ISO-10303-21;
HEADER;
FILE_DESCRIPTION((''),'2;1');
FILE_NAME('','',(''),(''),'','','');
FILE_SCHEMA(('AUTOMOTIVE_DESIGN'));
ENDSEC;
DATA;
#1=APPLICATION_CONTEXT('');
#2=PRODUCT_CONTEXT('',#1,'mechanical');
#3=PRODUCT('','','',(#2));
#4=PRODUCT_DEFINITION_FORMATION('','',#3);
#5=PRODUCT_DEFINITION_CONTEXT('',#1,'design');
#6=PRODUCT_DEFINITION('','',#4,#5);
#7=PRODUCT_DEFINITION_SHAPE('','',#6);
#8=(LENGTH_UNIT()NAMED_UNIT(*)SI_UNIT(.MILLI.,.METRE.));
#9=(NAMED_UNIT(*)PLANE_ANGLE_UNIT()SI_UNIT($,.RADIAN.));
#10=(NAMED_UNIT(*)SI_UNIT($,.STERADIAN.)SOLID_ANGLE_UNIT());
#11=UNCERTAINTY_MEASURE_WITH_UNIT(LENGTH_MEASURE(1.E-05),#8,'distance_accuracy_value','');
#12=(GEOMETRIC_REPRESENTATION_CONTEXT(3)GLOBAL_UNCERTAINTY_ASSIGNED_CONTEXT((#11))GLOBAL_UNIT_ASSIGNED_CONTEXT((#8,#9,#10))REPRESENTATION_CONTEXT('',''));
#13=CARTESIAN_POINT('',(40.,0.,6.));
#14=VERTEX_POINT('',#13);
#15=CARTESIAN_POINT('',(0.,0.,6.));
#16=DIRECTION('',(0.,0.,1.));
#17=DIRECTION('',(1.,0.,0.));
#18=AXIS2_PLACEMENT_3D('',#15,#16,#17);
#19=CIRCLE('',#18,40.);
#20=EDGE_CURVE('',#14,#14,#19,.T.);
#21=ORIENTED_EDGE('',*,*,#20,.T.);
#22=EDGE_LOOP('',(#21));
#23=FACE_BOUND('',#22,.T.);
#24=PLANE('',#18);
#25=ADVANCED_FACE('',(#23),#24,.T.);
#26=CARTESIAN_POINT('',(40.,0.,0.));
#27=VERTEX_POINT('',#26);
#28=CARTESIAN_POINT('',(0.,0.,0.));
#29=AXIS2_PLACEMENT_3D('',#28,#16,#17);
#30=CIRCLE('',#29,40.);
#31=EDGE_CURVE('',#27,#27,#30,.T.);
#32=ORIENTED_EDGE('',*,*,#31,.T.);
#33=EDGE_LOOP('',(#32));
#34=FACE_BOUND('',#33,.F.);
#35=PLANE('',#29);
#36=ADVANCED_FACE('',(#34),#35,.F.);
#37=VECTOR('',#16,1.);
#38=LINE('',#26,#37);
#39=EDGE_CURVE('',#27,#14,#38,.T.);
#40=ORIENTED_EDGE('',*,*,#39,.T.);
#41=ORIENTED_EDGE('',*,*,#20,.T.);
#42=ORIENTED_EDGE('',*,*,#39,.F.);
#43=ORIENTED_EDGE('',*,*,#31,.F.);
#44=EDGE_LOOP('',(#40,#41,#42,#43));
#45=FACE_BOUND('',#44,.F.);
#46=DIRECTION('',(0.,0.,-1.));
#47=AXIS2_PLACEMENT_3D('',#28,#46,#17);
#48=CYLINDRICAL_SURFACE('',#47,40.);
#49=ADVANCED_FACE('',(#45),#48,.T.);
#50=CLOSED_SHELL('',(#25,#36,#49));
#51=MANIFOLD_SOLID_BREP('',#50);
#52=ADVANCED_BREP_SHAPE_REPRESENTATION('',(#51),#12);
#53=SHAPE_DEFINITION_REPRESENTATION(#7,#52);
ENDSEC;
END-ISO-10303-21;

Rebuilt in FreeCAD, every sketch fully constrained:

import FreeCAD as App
import Part
import Sketcher

doc = App.newDocument("Part")
body = doc.addObject("PartDesign::Body", "Body")

sketch1 = body.newObject("Sketcher::SketchObject", "Sketch")
sketch1.AttachmentSupport = (doc.getObject("XY_Plane"), [""])
sketch1.MapMode = "FlatFace"
sketch1.addGeometry(Part.Circle(App.Vector(0, 0, 0), App.Vector(0, 0, 1), 40), False)
sketch1.addConstraint([
    Sketcher.Constraint("Coincident", 0, 3, -1, 1),
    Sketcher.Constraint("Diameter", 0, 80.0),
])
pad1 = body.newObject("PartDesign::Pad", "Pad")
pad1.Profile = sketch1
pad1.Length = 6

doc.recompute()
